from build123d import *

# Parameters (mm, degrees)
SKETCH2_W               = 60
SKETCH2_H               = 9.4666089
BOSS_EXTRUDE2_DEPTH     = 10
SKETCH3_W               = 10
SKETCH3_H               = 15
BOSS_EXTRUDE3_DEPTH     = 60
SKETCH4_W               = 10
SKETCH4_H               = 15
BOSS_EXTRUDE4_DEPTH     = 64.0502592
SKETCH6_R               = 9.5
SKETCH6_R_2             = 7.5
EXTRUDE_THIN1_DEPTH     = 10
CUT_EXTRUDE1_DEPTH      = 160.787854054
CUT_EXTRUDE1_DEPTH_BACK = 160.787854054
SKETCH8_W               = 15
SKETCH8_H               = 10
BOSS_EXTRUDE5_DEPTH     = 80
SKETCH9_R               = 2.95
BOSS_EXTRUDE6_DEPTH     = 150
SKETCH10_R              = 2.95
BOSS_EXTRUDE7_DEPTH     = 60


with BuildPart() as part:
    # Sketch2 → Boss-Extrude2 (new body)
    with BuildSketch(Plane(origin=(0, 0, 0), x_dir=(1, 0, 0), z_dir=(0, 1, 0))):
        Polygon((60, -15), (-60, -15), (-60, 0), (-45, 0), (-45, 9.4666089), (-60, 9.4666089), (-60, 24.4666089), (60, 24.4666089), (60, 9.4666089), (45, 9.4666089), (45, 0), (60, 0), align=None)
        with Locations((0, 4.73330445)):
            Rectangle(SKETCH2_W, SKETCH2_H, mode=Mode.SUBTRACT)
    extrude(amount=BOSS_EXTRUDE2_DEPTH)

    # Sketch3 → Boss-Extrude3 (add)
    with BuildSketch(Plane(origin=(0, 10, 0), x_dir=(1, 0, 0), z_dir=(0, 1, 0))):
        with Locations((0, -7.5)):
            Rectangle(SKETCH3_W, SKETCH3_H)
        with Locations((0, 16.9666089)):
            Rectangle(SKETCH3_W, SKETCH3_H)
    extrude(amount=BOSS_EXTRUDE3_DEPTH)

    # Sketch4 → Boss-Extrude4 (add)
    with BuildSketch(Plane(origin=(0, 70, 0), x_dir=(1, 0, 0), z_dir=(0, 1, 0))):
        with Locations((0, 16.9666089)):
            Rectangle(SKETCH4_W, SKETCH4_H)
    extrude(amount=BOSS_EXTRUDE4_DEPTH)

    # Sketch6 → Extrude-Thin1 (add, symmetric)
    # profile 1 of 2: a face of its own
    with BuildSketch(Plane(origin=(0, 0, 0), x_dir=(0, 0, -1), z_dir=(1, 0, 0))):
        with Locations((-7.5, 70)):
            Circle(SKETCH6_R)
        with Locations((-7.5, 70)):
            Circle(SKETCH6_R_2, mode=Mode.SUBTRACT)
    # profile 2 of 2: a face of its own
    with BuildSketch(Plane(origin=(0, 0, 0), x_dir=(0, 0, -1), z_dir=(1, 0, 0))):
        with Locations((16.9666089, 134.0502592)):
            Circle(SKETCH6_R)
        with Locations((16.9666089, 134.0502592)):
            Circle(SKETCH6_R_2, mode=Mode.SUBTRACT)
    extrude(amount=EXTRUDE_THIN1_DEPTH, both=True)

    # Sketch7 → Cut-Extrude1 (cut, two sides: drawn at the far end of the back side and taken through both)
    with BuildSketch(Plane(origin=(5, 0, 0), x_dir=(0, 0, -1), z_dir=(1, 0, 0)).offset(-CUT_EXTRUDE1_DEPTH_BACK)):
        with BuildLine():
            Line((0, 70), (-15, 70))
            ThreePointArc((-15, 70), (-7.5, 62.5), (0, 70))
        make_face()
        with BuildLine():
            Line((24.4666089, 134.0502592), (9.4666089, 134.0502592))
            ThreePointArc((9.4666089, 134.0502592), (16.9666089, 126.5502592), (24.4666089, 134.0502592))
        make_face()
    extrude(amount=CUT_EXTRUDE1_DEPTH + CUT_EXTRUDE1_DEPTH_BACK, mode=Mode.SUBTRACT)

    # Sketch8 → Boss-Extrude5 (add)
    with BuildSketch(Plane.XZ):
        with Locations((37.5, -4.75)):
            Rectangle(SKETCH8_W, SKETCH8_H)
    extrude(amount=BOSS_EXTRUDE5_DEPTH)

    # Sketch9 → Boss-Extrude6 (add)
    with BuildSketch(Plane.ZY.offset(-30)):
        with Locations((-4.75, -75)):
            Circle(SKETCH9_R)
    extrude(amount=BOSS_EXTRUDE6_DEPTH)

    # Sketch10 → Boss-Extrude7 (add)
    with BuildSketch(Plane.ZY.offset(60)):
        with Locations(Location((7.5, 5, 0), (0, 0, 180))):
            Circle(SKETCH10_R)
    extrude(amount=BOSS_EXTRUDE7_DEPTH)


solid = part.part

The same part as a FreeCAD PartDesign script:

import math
import FreeCAD as App
import Part
import Sketcher

V = App.Vector
Q = App.Units.Quantity


def add_polygon(sketch, points):
    """Adds a closed chain of lines whose ends are joined by coincident constraints."""
    first, n = sketch.GeometryCount, len(points)
    for a, b in zip(points, points[1:] + points[:1]):
        sketch.addGeometry(Part.LineSegment(App.Vector(*a, 0), App.Vector(*b, 0)), False)
    for i in range(n):
        sketch.addConstraint(Sketcher.Constraint("Coincident", first + i, 2, first + (i + 1) % n, 1))

doc = App.newDocument("Part")
body = doc.addObject("PartDesign::Body", "Body")

sketch1 = body.newObject("Sketcher::SketchObject", "Sketch")
sketch1.AttachmentSupport = (doc.getObject("XZ_Plane"), [""])
sketch1.MapMode = "FlatFace"
add_polygon(sketch1, [(-60, 15), (60, 15), (60, 0), (45, 0), (45, -9), (60, -9), (60, -24), (-60, -24), (-60, -9), (-45, -9), (-45, 0), (-60, 0)])
add_polygon(sketch1, [(-30, 0), (-30, -9), (30, -9), (30, 0)])
sketch1.addConstraint([
    Sketcher.Constraint("Horizontal", 0),
    Sketcher.Constraint("Vertical", 1),
    Sketcher.Constraint("Horizontal", 2),
    Sketcher.Constraint("Vertical", 3),
    Sketcher.Constraint("Horizontal", 4),
    Sketcher.Constraint("Vertical", 5),
    Sketcher.Constraint("Horizontal", 6),
    Sketcher.Constraint("Vertical", 7),
    Sketcher.Constraint("Horizontal", 8),
    Sketcher.Constraint("Vertical", 9),
    Sketcher.Constraint("Horizontal", 10),
    Sketcher.Constraint("Vertical", 11),
    Sketcher.Constraint("Vertical", 12),
    Sketcher.Constraint("Horizontal", 13),
    Sketcher.Constraint("Vertical", 14),
    Sketcher.Constraint("Horizontal", 15),
    Sketcher.Constraint("Symmetric", 2, 2, 9, 2, -1, 1),
    Sketcher.Constraint("Symmetric", 14, 2, 15, 2, -1, 1),
    Sketcher.Constraint("Symmetric", 4, 2, 7, 2, -2),
    Sketcher.Constraint("Symmetric", 1, 2, 10, 2, -2),
    Sketcher.Constraint("Horizontal", 8, 2, 12, 2),
    Sketcher.Constraint("Vertical", 1, 2, 4, 2),
    Sketcher.Constraint("Equal", 10, 1),
    Sketcher.Constraint("Equal", 1, 5),
    Sketcher.Constraint("DistanceX", 0, 1, 0, 2, Q("120 mm")),
    Sketcher.Constraint("DistanceX", 2, 2, 2, 1, Q("15 mm")),
    Sketcher.Constraint("DistanceX", 13, 1, 13, 2, Q("60 mm")),
    Sketcher.Constraint("DistanceY", 3, 2, 3, 1, Q("9.466609 mm")),
])
pad1 = body.newObject("PartDesign::Pad", "Pad")
pad1.Profile = sketch1
pad1.Length = 10
pad1.Reversed = True

sketch2 = body.newObject("Sketcher::SketchObject", "Sketch001")
sketch2.AttachmentSupport = (doc.getObject("XZ_Plane"), [""])
sketch2.MapMode = "FlatFace"
sketch2.AttachmentOffset = App.Placement(V(0, 0, -10), App.Rotation())
add_polygon(sketch2, [(-5, 0), (-5, 15), (5, 15), (5, 0)])
add_polygon(sketch2, [(-5, -24), (-5, -9), (5, -9), (5, -24)])
sketch2.addConstraint([
    Sketcher.Constraint("Vertical", 0),
    Sketcher.Constraint("Horizontal", 1),
    Sketcher.Constraint("Vertical", 2),
    Sketcher.Constraint("Horizontal", 3),
    Sketcher.Constraint("Vertical", 4),
    Sketcher.Constraint("Horizontal", 5),
    Sketcher.Constraint("Vertical", 6),
    Sketcher.Constraint("Horizontal", 7),
    Sketcher.Constraint("Symmetric", 2, 2, 3, 2, -1, 1),
    Sketcher.Constraint("Vertical", 3, 2, 4, 2),
    Sketcher.Constraint("Vertical", 2, 2, 5, 2),
    Sketcher.Constraint("Equal", 2, 4),
    Sketcher.Constraint("DistanceX", 1, 1, 1, 2, Q("10 mm")),
    Sketcher.Constraint("DistanceY", 0, 1, 0, 2, Q("15 mm")),
    Sketcher.Constraint("DistanceY", 4, 2, -1, 1, Q("9.466609 mm")),
])
pad2 = body.newObject("PartDesign::Pad", "Pad001")
pad2.Profile = sketch2
pad2.Length = 60
pad2.Reversed = True

sketch3 = body.newObject("Sketcher::SketchObject", "Sketch002")
sketch3.AttachmentSupport = (doc.getObject("XZ_Plane"), [""])
sketch3.MapMode = "FlatFace"
sketch3.AttachmentOffset = App.Placement(V(0, 0, -70), App.Rotation())
add_polygon(sketch3, [(-5, -24), (-5, -9), (5, -9), (5, -24)])
sketch3.addConstraint([
    Sketcher.Constraint("Vertical", 0),
    Sketcher.Constraint("Horizontal", 1),
    Sketcher.Constraint("Vertical", 2),
    Sketcher.Constraint("Horizontal", 3),
    Sketcher.Constraint("DistanceX", 1, 1, 1, 2, Q("10 mm")),
    Sketcher.Constraint("DistanceY", 0, 1, 0, 2, Q("15 mm")),
    Sketcher.Constraint("DistanceX", 0, 2, -1, 1, Q("5 mm")),
    Sketcher.Constraint("DistanceY", 0, 2, -1, 1, Q("9.466609 mm")),
])
pad3 = body.newObject("PartDesign::Pad", "Pad002")
pad3.Profile = sketch3
pad3.Length = 64.050259
pad3.Reversed = True

sketch4 = body.newObject("Sketcher::SketchObject", "Sketch003")
sketch4.AttachmentSupport = (doc.getObject("YZ_Plane"), [""])
sketch4.MapMode = "FlatFace"
sketch4.addGeometry([
    Part.Circle(V(70, 8, 0), V(0, 0, 1), 10),
    Part.Circle(V(70, 8, 0), V(0, 0, 1), 8),
    Part.Circle(V(134, -17, 0), V(0, 0, 1), 10),
    Part.Circle(V(134, -17, 0), V(0, 0, 1), 8),
], False)
sketch4.addConstraint([
    Sketcher.Constraint("Coincident", 1, 3, 0, 3),
    Sketcher.Constraint("Coincident", 3, 3, 2, 3),
    Sketcher.Constraint("Equal", 0, 2),
    Sketcher.Constraint("Equal", 1, 3),
    Sketcher.Constraint("Diameter", 0, Q("19 mm")),
    Sketcher.Constraint("Diameter", 1, Q("15 mm")),
    Sketcher.Constraint("DistanceX", -1, 1, 0, 3, Q("70 mm")),
    Sketcher.Constraint("DistanceY", -1, 1, 0, 3, Q("7.5 mm")),
    Sketcher.Constraint("DistanceX", -1, 1, 2, 3, Q("134.050259 mm")),
    Sketcher.Constraint("DistanceY", 2, 3, -1, 1, Q("16.966609 mm")),
])
pad4 = body.newObject("PartDesign::Pad", "Pad003")
pad4.Profile = sketch4
pad4.Length = 20
pad4.Midplane = True

sketch5 = body.newObject("Sketcher::SketchObject", "Sketch004")
sketch5.AttachmentSupport = (doc.getObject("YZ_Plane"), [""])
sketch5.MapMode = "FlatFace"
sketch5.AttachmentOffset = App.Placement(V(0, 0, 5), App.Rotation())
sketch5.addGeometry([
    Part.LineSegment(V(70, 0, 0), V(70, 15, 0)),
    Part.ArcOfCircle(Part.Circle(V(70, 8, 0), V(0, 0, 1), 8), math.radians(90), math.radians(270)),
    Part.LineSegment(V(134, -24, 0), V(134, -9, 0)),
    Part.ArcOfCircle(Part.Circle(V(134, -17, 0), V(0, 0, 1), 8), math.radians(90), math.radians(270)),
], False)
sketch5.addConstraint([
    Sketcher.Constraint("Coincident", 0, 1, 1, 2),
    Sketcher.Constraint("Coincident", 1, 1, 0, 2),
    Sketcher.Constraint("Coincident", 2, 1, 3, 2),
    Sketcher.Constraint("Coincident", 3, 1, 2, 2),
    Sketcher.Constraint("Vertical", 0),
    Sketcher.Constraint("Vertical", 2),
    Sketcher.Constraint("Equal", 1, 3),
    Sketcher.Constraint("PointOnObject", 0, 1, -1),
    Sketcher.Constraint("Vertical", 1, 3, 0, 1),
    Sketcher.Constraint("Vertical", 3, 3, 2, 1),
    Sketcher.Constraint("Radius", 1, Q("7.5 mm")),
    Sketcher.Constraint("DistanceX", -1, 1, 1, 3, Q("70 mm")),
    Sketcher.Constraint("DistanceX", -1, 1, 3, 3, Q("134.050259 mm")),
    Sketcher.Constraint("DistanceY", 3, 3, -1, 1, Q("16.966609 mm")),
])
pocket1 = body.newObject("PartDesign::Pocket", "Pocket")
pocket1.Profile = sketch5
pocket1.Type = "ThroughAll"
pocket1.Midplane = True

sketch6 = body.newObject("Sketcher::SketchObject", "Sketch005")
sketch6.AttachmentSupport = (doc.getObject("XZ_Plane"), [""])
sketch6.MapMode = "FlatFace"
add_polygon(sketch6, [(30, 0), (30, -10), (45, -10), (45, 0)])
sketch6.addConstraint([
    Sketcher.Constraint("Vertical", 0),
    Sketcher.Constraint("Horizontal", 1),
    Sketcher.Constraint("Vertical", 2),
    Sketcher.Constraint("Horizontal", 3),
    Sketcher.Constraint("DistanceX", 1, 1, 1, 2, Q("15 mm")),
    Sketcher.Constraint("DistanceY", 0, 2, 0, 1, Q("10 mm")),
    Sketcher.Constraint("DistanceX", -1, 1, 0, 2, Q("30 mm")),
    Sketcher.Constraint("DistanceY", 0, 2, -1, 1, Q("9.75 mm")),
])
pad5 = body.newObject("PartDesign::Pad", "Pad004")
pad5.Profile = sketch6
pad5.Length = 80

sketch7 = body.newObject("Sketcher::SketchObject", "Sketch006")
sketch7.AttachmentSupport = (doc.getObject("YZ_Plane"), [""])
sketch7.MapMode = "FlatFace"
sketch7.AttachmentOffset = App.Placement(V(0, 0, 30), App.Rotation())
sketch7.addGeometry(Part.Circle(V(-75, -4.8, 0), V(0, 0, 1), 3), False)
sketch7.addConstraint([
    Sketcher.Constraint("Diameter", 0, Q("5.9 mm")),
    Sketcher.Constraint("DistanceX", 0, 3, -1, 1, Q("75 mm")),
    Sketcher.Constraint("DistanceY", 0, 3, -1, 1, Q("4.75 mm")),
])
pad6 = body.newObject("PartDesign::Pad", "Pad005")
pad6.Profile = sketch7
pad6.Length = 150
pad6.Reversed = True

sketch8 = body.newObject("Sketcher::SketchObject", "Sketch007")
sketch8.AttachmentSupport = (doc.getObject("YZ_Plane"), [""])
sketch8.MapMode = "FlatFace"
sketch8.AttachmentOffset = App.Placement(V(0, 0, -60), App.Rotation())
sketch8.addGeometry(Part.Circle(V(5, 7.5, 0), V(0, 0, 1), 3), False)
sketch8.addConstraint([
    Sketcher.Constraint("Diameter", 0, Q("5.9 mm")),
    Sketcher.Constraint("DistanceX", -1, 1, 0, 3, Q("5 mm")),
    Sketcher.Constraint("DistanceY", -1, 1, 0, 3, Q("7.5 mm")),
])
pad7 = body.newObject("PartDesign::Pad", "Pad006")
pad7.Profile = sketch8
pad7.Length = 60
pad7.Reversed = True

doc.recompute()
